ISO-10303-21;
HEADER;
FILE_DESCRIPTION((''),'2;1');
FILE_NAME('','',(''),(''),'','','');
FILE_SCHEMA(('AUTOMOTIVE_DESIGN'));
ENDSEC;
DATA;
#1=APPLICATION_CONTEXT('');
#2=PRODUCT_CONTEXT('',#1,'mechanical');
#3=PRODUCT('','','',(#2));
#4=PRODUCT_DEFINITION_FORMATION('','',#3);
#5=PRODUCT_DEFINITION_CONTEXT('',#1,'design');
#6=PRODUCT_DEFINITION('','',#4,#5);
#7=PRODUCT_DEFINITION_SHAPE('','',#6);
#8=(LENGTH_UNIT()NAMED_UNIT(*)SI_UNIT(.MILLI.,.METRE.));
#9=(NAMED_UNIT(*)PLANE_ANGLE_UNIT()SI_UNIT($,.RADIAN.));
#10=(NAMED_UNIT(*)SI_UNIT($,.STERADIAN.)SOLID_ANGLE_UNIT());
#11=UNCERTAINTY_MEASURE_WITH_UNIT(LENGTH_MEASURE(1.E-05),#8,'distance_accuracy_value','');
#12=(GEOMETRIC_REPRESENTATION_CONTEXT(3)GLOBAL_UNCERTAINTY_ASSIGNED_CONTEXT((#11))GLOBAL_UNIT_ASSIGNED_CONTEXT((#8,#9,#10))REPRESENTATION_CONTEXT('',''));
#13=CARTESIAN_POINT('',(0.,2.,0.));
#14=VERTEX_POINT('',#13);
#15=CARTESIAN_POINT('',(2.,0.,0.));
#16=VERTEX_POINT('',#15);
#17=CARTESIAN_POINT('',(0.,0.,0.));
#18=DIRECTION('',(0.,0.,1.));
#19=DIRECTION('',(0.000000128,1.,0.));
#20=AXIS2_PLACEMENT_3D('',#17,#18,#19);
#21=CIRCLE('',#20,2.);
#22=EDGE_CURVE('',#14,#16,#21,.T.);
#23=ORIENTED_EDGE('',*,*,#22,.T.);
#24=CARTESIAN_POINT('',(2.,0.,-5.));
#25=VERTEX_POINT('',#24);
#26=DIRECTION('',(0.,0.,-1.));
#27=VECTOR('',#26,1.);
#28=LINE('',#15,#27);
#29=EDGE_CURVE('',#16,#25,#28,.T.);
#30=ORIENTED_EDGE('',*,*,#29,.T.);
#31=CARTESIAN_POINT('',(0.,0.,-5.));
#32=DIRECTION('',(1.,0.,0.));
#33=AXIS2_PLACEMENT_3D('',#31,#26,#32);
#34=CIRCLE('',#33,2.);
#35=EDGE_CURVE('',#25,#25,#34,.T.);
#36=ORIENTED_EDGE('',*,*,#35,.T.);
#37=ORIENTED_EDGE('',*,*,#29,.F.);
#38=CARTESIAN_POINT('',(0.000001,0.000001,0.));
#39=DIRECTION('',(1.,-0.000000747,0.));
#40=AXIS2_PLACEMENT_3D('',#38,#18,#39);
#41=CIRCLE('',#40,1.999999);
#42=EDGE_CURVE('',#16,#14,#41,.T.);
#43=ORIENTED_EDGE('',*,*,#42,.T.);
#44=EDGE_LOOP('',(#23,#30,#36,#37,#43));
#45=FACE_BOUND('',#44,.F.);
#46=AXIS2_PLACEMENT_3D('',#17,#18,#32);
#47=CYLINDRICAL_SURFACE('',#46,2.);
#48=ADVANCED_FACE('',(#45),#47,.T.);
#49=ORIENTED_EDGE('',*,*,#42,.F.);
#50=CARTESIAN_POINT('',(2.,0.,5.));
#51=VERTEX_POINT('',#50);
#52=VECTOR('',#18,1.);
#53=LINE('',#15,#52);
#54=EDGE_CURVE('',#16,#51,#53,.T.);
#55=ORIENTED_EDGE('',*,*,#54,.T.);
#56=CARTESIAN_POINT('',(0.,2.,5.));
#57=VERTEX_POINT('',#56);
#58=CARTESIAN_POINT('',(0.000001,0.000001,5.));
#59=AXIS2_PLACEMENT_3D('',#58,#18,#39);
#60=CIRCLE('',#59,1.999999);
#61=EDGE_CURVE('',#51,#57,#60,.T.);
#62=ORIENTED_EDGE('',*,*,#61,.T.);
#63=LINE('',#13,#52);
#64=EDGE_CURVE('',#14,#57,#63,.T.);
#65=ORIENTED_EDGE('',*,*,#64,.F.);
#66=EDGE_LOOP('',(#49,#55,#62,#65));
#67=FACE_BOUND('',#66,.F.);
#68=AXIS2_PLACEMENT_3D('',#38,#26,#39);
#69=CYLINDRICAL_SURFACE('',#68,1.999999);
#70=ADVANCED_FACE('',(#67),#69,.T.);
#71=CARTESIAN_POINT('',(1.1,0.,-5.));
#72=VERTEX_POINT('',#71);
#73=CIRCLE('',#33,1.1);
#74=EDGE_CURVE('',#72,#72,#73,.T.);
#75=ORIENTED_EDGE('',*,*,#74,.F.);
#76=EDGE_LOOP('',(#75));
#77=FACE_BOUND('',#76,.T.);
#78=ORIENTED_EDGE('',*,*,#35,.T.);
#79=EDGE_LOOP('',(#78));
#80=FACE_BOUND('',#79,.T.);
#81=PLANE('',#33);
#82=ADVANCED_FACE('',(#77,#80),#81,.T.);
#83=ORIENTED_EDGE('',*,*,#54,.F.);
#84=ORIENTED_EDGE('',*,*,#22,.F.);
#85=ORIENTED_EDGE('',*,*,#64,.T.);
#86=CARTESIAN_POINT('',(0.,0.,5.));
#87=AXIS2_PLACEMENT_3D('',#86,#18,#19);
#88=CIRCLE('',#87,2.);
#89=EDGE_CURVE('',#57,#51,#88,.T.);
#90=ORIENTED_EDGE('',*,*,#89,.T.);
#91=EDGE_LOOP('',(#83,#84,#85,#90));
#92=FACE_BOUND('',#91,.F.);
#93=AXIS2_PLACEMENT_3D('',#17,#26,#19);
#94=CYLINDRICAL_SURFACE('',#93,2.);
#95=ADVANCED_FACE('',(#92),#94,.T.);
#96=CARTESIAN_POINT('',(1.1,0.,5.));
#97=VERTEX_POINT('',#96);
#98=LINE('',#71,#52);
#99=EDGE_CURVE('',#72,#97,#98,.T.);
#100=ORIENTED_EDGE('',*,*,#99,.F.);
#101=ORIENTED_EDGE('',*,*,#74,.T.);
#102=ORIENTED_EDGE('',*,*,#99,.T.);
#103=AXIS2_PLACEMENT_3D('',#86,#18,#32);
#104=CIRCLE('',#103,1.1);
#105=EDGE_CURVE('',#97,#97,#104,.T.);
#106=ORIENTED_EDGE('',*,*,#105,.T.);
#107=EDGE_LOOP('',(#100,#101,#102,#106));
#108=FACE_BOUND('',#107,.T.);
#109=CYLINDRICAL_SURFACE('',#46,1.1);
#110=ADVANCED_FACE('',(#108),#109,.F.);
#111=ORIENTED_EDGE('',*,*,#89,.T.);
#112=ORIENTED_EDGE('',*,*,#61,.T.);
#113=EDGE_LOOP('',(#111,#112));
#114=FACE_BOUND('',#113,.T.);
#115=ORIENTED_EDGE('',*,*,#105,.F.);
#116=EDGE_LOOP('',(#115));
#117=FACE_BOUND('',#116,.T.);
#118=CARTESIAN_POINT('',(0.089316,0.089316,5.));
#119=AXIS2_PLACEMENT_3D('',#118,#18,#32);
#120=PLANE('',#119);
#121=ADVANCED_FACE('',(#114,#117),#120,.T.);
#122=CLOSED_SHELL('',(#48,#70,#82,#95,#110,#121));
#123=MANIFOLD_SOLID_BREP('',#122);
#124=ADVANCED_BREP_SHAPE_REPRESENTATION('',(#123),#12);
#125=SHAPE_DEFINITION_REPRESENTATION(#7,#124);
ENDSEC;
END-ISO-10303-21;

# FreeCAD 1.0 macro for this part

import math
import FreeCAD as App
import Part
import Sketcher

V = App.Vector

doc = App.newDocument("Part")
body = doc.addObject("PartDesign::Body", "Body")

# Sketch on XY plane
sketch1 = body.newObject("Sketcher::SketchObject", "Sketch")
sketch1.AttachmentSupport = (doc.getObject("XY_Plane"), [""])
sketch1.MapMode = "FlatFace"
sketch1.addGeometry([
    Part.ArcOfCircle(Part.Circle(V(0, 0, 0), V(0, 0, 1), 2), math.radians(90), math.radians(360)),
    Part.ArcOfCircle(Part.Circle(V(0, 0, 0), V(0, 0, 1), 2), math.radians(0), math.radians(90)),
    Part.Circle(V(0, 0, 0), V(0, 0, 1), 1.1),
], False)
sketch1.addConstraint([
    Sketcher.Constraint("Tangent", 0, 1, 1, 2),
    Sketcher.Constraint("Coincident", 1, 1, 0, 2),
    Sketcher.Constraint("Coincident", 0, 3, -1, 1),
    Sketcher.Constraint("Coincident", 2, 3, -1, 1),
    Sketcher.Constraint("PointOnObject", 0, 1, -2),
    Sketcher.Constraint("PointOnObject", 1, 1, -1),
    Sketcher.Constraint("Radius", 0, 2.0),
    Sketcher.Constraint("Diameter", 2, 2.2),
])
pad1 = body.newObject("PartDesign::Pad", "Pad")
pad1.Profile = sketch1
pad1.Length = 5

# Sketch on XY plane
sketch2 = body.newObject("Sketcher::SketchObject", "Sketch001")
sketch2.AttachmentSupport = (doc.getObject("XY_Plane"), [""])
sketch2.MapMode = "FlatFace"
sketch2.addGeometry([
    Part.Circle(V(0, 0, 0), V(0, 0, 1), 2),
    Part.Circle(V(0, 0, 0), V(0, 0, 1), 1.1),
], False)
sketch2.addConstraint([
    Sketcher.Constraint("Coincident", 0, 3, -1, 1),
    Sketcher.Constraint("Coincident", 1, 3, -1, 1),
    Sketcher.Constraint("Diameter", 0, 4.0),
    Sketcher.Constraint("Diameter", 1, 2.2),
])
pad2 = body.newObject("PartDesign::Pad", "Pad001")
pad2.Profile = sketch2
pad2.Length = 5
pad2.Reversed = True

doc.recompute()
